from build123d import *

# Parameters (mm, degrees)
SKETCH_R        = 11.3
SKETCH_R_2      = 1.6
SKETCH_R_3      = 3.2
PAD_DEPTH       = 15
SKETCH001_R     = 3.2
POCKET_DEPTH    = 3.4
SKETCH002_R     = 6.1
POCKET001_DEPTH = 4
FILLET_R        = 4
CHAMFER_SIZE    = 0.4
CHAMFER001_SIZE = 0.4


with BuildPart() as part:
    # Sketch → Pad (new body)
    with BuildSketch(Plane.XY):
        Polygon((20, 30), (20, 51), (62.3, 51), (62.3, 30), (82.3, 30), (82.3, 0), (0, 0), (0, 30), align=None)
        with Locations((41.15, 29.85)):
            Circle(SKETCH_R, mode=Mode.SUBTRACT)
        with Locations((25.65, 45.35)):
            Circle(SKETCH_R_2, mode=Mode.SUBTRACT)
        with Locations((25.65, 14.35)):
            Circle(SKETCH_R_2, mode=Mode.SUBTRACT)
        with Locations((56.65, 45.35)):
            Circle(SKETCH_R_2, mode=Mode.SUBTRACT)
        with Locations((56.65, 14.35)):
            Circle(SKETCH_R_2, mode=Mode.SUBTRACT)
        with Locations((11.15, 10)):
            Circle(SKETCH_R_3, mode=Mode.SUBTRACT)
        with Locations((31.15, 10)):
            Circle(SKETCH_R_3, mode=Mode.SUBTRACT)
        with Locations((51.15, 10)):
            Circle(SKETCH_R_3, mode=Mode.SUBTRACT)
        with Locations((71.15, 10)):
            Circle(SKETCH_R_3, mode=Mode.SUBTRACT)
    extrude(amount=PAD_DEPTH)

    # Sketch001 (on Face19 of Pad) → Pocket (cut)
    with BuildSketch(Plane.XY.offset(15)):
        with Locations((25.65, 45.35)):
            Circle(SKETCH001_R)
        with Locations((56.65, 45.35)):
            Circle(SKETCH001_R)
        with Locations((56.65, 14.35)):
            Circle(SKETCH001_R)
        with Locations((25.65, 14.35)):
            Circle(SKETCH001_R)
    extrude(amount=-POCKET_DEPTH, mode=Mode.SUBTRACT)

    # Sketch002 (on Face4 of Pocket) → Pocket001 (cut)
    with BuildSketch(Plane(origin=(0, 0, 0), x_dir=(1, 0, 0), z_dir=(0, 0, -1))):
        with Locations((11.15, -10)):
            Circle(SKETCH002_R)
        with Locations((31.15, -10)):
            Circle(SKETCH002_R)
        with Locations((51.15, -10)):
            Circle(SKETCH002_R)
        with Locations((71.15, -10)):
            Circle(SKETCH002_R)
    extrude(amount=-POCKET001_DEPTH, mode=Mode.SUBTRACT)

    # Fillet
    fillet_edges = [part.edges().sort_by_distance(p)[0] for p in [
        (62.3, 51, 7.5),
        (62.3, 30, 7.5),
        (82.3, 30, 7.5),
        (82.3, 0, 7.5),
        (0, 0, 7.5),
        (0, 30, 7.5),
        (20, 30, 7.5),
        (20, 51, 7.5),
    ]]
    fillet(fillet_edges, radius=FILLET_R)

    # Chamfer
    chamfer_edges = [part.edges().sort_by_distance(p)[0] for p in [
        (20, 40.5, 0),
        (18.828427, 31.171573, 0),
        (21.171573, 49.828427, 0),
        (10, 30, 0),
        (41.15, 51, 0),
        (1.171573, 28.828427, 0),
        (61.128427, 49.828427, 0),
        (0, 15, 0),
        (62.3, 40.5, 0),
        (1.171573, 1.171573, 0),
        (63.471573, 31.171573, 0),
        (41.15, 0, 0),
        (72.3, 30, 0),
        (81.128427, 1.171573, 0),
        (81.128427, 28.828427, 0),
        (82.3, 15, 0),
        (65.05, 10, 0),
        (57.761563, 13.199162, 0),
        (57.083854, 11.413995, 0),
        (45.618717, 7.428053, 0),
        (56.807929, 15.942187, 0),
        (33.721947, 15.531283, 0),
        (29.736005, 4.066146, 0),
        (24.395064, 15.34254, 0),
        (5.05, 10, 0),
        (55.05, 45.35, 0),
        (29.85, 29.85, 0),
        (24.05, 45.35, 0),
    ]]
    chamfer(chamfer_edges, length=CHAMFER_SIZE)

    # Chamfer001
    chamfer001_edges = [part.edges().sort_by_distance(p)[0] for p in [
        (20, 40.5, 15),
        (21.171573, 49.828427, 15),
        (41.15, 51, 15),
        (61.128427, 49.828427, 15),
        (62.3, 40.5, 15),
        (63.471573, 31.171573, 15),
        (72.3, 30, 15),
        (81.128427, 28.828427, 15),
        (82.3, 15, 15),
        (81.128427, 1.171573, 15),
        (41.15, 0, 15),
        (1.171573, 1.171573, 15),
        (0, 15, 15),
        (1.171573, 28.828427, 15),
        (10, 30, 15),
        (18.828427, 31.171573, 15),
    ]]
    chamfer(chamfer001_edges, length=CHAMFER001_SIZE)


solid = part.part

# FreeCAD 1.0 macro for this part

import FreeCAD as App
import Part
import Sketcher

V = App.Vector


def edges_at(feature, points):
    """Names of the edges that pass closest to the given points."""
    edges = feature.Shape.Edges
    near = lambda p: min(range(len(edges)), key=lambda i: edges[i].distToShape(Part.Vertex(*p))[0])
    return sorted({f"Edge{near(p) + 1}" for p in points})


def add_polygon(sketch, points):
    """Adds a closed chain of lines whose ends are joined by coincident constraints."""
    first, n = sketch.GeometryCount, len(points)
    for a, b in zip(points, points[1:] + points[:1]):
        sketch.addGeometry(Part.LineSegment(App.Vector(*a, 0), App.Vector(*b, 0)), False)
    for i in range(n):
        sketch.addConstraint(Sketcher.Constraint("Coincident", first + i, 2, first + (i + 1) % n, 1))

doc = App.newDocument("Part")
body = doc.addObject("PartDesign::Body", "Body")

# Sketch on XY plane
sketch1 = doc.addObject("Sketcher::SketchObject", "Sketch")
body.addObject(sketch1)
sketch1.AttachmentSupport = (doc.XY_Plane, [""])
sketch1.MapMode = "FlatFace"
add_polygon(sketch1, [(20, 51), (20, 30), (0, 30), (0, 0), (82.3, 0), (82.3, 30), (62.3, 30), (62.3, 51)])  # lines 0-7
sketch1.addGeometry(Part.Circle(V(71.2, 10, 0), V(0, 0, 1), 3.2), False)  # 8
sketch1.addGeometry(Part.Circle(V(51.1, 10, 0), V(0, 0, 1), 3.2), False)  # 9
sketch1.addGeometry(Part.Circle(V(56.6, 14.3, 0), V(0, 0, 1), 1.6), False)  # 10
sketch1.addGeometry(Part.Circle(V(31.1, 10, 0), V(0, 0, 1), 3.2), False)  # 11
sketch1.addGeometry(Part.Circle(V(25.6, 14.3, 0), V(0, 0, 1), 1.6), False)  # 12
sketch1.addGeometry(Part.Circle(V(11.2, 10, 0), V(0, 0, 1), 3.2), False)  # 13
sketch1.addGeometry(Part.Circle(V(56.6, 45.4, 0), V(0, 0, 1), 1.6), False)  # 14
sketch1.addGeometry(Part.Circle(V(41.1, 29.9, 0), V(0, 0, 1), 11.3), False)  # 15
sketch1.addGeometry(Part.Circle(V(25.6, 45.4, 0), V(0, 0, 1), 1.6), False)  # 16
sketch1.addConstraint([
    Sketcher.Constraint("Vertical", 0),
    Sketcher.Constraint("Horizontal", 1),
    Sketcher.Constraint("Vertical", 2),
    Sketcher.Constraint("Horizontal", 3),
    Sketcher.Constraint("Vertical", 4),
    Sketcher.Constraint("Horizontal", 5),
    Sketcher.Constraint("Vertical", 6),
    Sketcher.Constraint("Horizontal", 7),
    Sketcher.Constraint("Coincident", 2, 2, -1, 1),
    Sketcher.Constraint("Equal", 8, 9),
    Sketcher.Constraint("Equal", 9, 11),
    Sketcher.Constraint("Equal", 10, 12),
    Sketcher.Constraint("Equal", 11, 13),
    Sketcher.Constraint("Equal", 12, 14),
    Sketcher.Constraint("Equal", 14, 16),
    Sketcher.Constraint("Horizontal", 8, 3, 9, 3),
    Sketcher.Constraint("Horizontal", 9, 3, 11, 3),
    Sketcher.Constraint("Horizontal", 10, 3, 12, 3),
    Sketcher.Constraint("Horizontal", 11, 3, 13, 3),
    Sketcher.Constraint("Horizontal", 14, 3, 16, 3),
    Sketcher.Constraint("Horizontal", 1, 2, 4, 2),
    Sketcher.Constraint("Vertical", 10, 3, 14, 3),
    Sketcher.Constraint("Vertical", 12, 3, 16, 3),
    Sketcher.Constraint("Equal", 1, 5),
    Sketcher.Constraint("Diameter", 8, 6.4),
    Sketcher.Constraint("Diameter", 10, 3.2),
    Sketcher.Constraint("Diameter", 15, 22.6),
    Sketcher.Constraint("DistanceX", 1, 2, 1, 1, 20.0),
    Sketcher.Constraint("DistanceY", 0, 2, 0, 1, 21.0),
    Sketcher.Constraint("DistanceY", 2, 2, 2, 1, 30.0),
    Sketcher.Constraint("DistanceX", 3, 1, 3, 2, 82.3),
    Sketcher.Constraint("DistanceY", -1, 1, 8, 3, 10.0),
    Sketcher.Constraint("DistanceX", 9, 3, 8, 3, 20.0),
    Sketcher.Constraint("DistanceX", 11, 3, 9, 3, 20.0),
    Sketcher.Constraint("DistanceX", 12, 3, 10, 3, 31.0),
    Sketcher.Constraint("DistanceX", 13, 3, 11, 3, 20.0),
    Sketcher.Constraint("DistanceY", 10, 3, 14, 3, 31.0),
    Sketcher.Constraint("DistanceX", 15, 3, 9, 3, 10.0),
    Sketcher.Constraint("DistanceX", 9, 3, 10, 3, 5.5),
    Sketcher.Constraint("DistanceY", 15, 3, 14, 3, 15.5),
    Sketcher.Constraint("DistanceX", -1, 1, 8, 3, 71.15),
    Sketcher.Constraint("DistanceY", -1, 1, 10, 3, 14.35),
])
pad1 = doc.addObject("PartDesign::Pad", "Pad")
body.addObject(pad1)
pad1.Profile = sketch1
pad1.Length = 15

# Sketch on XY plane
sketch2 = doc.addObject("Sketcher::SketchObject", "Sketch001")
body.addObject(sketch2)
sketch2.AttachmentSupport = (doc.XY_Plane, [""])
sketch2.MapMode = "FlatFace"
sketch2.AttachmentOffset = App.Placement(V(0, 0, 15), App.Rotation())
sketch2.addGeometry([
    Part.Circle(V(25.6, 45.4, 0), V(0, 0, 1), 3.2),
    Part.Circle(V(56.6, 45.4, 0), V(0, 0, 1), 3.2),
    Part.Circle(V(56.6, 14.3, 0), V(0, 0, 1), 3.2),
    Part.Circle(V(25.6, 14.3, 0), V(0, 0, 1), 3.2),
], False)
sketch2.addConstraint([
    Sketcher.Constraint("Equal", 0, 1),
    Sketcher.Constraint("Equal", 1, 2),
    Sketcher.Constraint("Equal", 2, 3),
    Sketcher.Constraint("Horizontal", 0, 3, 1, 3),
    Sketcher.Constraint("Horizontal", 2, 3, 3, 3),
    Sketcher.Constraint("Vertical", 1, 3, 2, 3),
    Sketcher.Constraint("Vertical", 0, 3, 3, 3),
    Sketcher.Constraint("Diameter", 0, 6.4),
    Sketcher.Constraint("DistanceX", 0, 3, 1, 3, 31.0),
    Sketcher.Constraint("DistanceY", 2, 3, 1, 3, 31.0),
    Sketcher.Constraint("DistanceX", -1, 1, 0, 3, 25.65),
    Sketcher.Constraint("DistanceY", -1, 1, 0, 3, 45.35),
])
pocket1 = doc.addObject("PartDesign::Pocket", "Pocket")
body.addObject(pocket1)
pocket1.Profile = sketch2
pocket1.Length = 3.4

# Sketch on XY plane
sketch3 = doc.addObject("Sketcher::SketchObject", "Sketch002")
body.addObject(sketch3)
sketch3.AttachmentSupport = (doc.XY_Plane, [""])
sketch3.MapMode = "FlatFace"
sketch3.addGeometry([
    Part.Circle(V(11, 10, 0), V(0, 0, 1), 6),
    Part.Circle(V(31, 10, 0), V(0, 0, 1), 6),
    Part.Circle(V(51, 10, 0), V(0, 0, 1), 6),
    Part.Circle(V(71, 10, 0), V(0, 0, 1), 6),
], False)
sketch3.addConstraint([
    Sketcher.Constraint("Equal", 0, 1),
    Sketcher.Constraint("Equal", 1, 2),
    Sketcher.Constraint("Equal", 2, 3),
    Sketcher.Constraint("Horizontal", 0, 3, 1, 3),
    Sketcher.Constraint("Horizontal", 1, 3, 2, 3),
    Sketcher.Constraint("Horizontal", 2, 3, 3, 3),
    Sketcher.Constraint("Diameter", 0, 12.2),
    Sketcher.Constraint("DistanceY", -1, 1, 0, 3, 10.0),
    Sketcher.Constraint("DistanceX", 0, 3, 1, 3, 20.0),
    Sketcher.Constraint("DistanceX", 1, 3, 2, 3, 20.0),
    Sketcher.Constraint("DistanceX", 2, 3, 3, 3, 20.0),
    Sketcher.Constraint("DistanceX", -1, 1, 0, 3, 11.15),
])
pocket2 = doc.addObject("PartDesign::Pocket", "Pocket001")
body.addObject(pocket2)
pocket2.Profile = sketch3
pocket2.Length = 4
pocket2.Reversed = True
doc.recompute()

fillet = doc.addObject("PartDesign::Fillet", "Fillet")
body.addObject(fillet)
fillet.Base = (pocket2, edges_at(pocket2, [
    (62.3, 51, 7.5),
    (62.3, 30, 7.5),
    (82.3, 30, 7.5),
    (82.3, 0, 7.5),
    (0, 0, 7.5),
    (0, 30, 7.5),
    (20, 30, 7.5),
    (20, 51, 7.5),
]))
fillet.Radius = 4
doc.recompute()

chamfer = doc.addObject("PartDesign::Chamfer", "Chamfer")
body.addObject(chamfer)
chamfer.Base = (fillet, edges_at(fillet, [
    (20, 40.5, 0),
    (18.828, 31.172, 0),
    (21.172, 49.828, 0),
    (10, 30, 0),
    (41.15, 51, 0),
    (1.172, 28.828, 0),
    (61.128, 49.828, 0),
    (0, 15, 0),
    (62.3, 40.5, 0),
    (1.172, 1.172, 0),
    (63.472, 31.172, 0),
    (41.15, 0, 0),
    (72.3, 30, 0),
    (81.128, 1.172, 0),
    (81.128, 28.828, 0),
    (82.3, 15, 0),
    (65.05, 10, 0),
    (57.762, 13.199, 0),
    (46.366, 6.216, 0),
    (46.366, 6.216, 0),
    (56.808, 15.942, 0),
    (35.934, 6.216, 0),
    (35.934, 6.216, 0),
    (24.395, 15.343, 0),
    (5.05, 10, 0),
    (55.05, 45.35, 0),
    (29.85, 29.85, 0),
    (24.05, 45.35, 0),
]))
chamfer.Size = 0.4
doc.recompute()

chamfer2 = doc.addObject("PartDesign::Chamfer", "Chamfer001")
body.addObject(chamfer2)
chamfer2.Base = (chamfer, edges_at(chamfer, [
    (20, 40.5, 15),
    (21.172, 49.828, 15),
    (41.15, 51, 15),
    (61.128, 49.828, 15),
    (62.3, 40.5, 15),
    (63.472, 31.172, 15),
    (72.3, 30, 15),
    (81.128, 28.828, 15),
    (82.3, 15, 15),
    (81.128, 1.172, 15),
    (41.15, 0, 15),
    (1.172, 1.172, 15),
    (0, 15, 15),
    (1.172, 28.828, 15),
    (10, 30, 15),
    (18.828, 31.172, 15),
]))
chamfer2.Size = 0.4

doc.recompute()
